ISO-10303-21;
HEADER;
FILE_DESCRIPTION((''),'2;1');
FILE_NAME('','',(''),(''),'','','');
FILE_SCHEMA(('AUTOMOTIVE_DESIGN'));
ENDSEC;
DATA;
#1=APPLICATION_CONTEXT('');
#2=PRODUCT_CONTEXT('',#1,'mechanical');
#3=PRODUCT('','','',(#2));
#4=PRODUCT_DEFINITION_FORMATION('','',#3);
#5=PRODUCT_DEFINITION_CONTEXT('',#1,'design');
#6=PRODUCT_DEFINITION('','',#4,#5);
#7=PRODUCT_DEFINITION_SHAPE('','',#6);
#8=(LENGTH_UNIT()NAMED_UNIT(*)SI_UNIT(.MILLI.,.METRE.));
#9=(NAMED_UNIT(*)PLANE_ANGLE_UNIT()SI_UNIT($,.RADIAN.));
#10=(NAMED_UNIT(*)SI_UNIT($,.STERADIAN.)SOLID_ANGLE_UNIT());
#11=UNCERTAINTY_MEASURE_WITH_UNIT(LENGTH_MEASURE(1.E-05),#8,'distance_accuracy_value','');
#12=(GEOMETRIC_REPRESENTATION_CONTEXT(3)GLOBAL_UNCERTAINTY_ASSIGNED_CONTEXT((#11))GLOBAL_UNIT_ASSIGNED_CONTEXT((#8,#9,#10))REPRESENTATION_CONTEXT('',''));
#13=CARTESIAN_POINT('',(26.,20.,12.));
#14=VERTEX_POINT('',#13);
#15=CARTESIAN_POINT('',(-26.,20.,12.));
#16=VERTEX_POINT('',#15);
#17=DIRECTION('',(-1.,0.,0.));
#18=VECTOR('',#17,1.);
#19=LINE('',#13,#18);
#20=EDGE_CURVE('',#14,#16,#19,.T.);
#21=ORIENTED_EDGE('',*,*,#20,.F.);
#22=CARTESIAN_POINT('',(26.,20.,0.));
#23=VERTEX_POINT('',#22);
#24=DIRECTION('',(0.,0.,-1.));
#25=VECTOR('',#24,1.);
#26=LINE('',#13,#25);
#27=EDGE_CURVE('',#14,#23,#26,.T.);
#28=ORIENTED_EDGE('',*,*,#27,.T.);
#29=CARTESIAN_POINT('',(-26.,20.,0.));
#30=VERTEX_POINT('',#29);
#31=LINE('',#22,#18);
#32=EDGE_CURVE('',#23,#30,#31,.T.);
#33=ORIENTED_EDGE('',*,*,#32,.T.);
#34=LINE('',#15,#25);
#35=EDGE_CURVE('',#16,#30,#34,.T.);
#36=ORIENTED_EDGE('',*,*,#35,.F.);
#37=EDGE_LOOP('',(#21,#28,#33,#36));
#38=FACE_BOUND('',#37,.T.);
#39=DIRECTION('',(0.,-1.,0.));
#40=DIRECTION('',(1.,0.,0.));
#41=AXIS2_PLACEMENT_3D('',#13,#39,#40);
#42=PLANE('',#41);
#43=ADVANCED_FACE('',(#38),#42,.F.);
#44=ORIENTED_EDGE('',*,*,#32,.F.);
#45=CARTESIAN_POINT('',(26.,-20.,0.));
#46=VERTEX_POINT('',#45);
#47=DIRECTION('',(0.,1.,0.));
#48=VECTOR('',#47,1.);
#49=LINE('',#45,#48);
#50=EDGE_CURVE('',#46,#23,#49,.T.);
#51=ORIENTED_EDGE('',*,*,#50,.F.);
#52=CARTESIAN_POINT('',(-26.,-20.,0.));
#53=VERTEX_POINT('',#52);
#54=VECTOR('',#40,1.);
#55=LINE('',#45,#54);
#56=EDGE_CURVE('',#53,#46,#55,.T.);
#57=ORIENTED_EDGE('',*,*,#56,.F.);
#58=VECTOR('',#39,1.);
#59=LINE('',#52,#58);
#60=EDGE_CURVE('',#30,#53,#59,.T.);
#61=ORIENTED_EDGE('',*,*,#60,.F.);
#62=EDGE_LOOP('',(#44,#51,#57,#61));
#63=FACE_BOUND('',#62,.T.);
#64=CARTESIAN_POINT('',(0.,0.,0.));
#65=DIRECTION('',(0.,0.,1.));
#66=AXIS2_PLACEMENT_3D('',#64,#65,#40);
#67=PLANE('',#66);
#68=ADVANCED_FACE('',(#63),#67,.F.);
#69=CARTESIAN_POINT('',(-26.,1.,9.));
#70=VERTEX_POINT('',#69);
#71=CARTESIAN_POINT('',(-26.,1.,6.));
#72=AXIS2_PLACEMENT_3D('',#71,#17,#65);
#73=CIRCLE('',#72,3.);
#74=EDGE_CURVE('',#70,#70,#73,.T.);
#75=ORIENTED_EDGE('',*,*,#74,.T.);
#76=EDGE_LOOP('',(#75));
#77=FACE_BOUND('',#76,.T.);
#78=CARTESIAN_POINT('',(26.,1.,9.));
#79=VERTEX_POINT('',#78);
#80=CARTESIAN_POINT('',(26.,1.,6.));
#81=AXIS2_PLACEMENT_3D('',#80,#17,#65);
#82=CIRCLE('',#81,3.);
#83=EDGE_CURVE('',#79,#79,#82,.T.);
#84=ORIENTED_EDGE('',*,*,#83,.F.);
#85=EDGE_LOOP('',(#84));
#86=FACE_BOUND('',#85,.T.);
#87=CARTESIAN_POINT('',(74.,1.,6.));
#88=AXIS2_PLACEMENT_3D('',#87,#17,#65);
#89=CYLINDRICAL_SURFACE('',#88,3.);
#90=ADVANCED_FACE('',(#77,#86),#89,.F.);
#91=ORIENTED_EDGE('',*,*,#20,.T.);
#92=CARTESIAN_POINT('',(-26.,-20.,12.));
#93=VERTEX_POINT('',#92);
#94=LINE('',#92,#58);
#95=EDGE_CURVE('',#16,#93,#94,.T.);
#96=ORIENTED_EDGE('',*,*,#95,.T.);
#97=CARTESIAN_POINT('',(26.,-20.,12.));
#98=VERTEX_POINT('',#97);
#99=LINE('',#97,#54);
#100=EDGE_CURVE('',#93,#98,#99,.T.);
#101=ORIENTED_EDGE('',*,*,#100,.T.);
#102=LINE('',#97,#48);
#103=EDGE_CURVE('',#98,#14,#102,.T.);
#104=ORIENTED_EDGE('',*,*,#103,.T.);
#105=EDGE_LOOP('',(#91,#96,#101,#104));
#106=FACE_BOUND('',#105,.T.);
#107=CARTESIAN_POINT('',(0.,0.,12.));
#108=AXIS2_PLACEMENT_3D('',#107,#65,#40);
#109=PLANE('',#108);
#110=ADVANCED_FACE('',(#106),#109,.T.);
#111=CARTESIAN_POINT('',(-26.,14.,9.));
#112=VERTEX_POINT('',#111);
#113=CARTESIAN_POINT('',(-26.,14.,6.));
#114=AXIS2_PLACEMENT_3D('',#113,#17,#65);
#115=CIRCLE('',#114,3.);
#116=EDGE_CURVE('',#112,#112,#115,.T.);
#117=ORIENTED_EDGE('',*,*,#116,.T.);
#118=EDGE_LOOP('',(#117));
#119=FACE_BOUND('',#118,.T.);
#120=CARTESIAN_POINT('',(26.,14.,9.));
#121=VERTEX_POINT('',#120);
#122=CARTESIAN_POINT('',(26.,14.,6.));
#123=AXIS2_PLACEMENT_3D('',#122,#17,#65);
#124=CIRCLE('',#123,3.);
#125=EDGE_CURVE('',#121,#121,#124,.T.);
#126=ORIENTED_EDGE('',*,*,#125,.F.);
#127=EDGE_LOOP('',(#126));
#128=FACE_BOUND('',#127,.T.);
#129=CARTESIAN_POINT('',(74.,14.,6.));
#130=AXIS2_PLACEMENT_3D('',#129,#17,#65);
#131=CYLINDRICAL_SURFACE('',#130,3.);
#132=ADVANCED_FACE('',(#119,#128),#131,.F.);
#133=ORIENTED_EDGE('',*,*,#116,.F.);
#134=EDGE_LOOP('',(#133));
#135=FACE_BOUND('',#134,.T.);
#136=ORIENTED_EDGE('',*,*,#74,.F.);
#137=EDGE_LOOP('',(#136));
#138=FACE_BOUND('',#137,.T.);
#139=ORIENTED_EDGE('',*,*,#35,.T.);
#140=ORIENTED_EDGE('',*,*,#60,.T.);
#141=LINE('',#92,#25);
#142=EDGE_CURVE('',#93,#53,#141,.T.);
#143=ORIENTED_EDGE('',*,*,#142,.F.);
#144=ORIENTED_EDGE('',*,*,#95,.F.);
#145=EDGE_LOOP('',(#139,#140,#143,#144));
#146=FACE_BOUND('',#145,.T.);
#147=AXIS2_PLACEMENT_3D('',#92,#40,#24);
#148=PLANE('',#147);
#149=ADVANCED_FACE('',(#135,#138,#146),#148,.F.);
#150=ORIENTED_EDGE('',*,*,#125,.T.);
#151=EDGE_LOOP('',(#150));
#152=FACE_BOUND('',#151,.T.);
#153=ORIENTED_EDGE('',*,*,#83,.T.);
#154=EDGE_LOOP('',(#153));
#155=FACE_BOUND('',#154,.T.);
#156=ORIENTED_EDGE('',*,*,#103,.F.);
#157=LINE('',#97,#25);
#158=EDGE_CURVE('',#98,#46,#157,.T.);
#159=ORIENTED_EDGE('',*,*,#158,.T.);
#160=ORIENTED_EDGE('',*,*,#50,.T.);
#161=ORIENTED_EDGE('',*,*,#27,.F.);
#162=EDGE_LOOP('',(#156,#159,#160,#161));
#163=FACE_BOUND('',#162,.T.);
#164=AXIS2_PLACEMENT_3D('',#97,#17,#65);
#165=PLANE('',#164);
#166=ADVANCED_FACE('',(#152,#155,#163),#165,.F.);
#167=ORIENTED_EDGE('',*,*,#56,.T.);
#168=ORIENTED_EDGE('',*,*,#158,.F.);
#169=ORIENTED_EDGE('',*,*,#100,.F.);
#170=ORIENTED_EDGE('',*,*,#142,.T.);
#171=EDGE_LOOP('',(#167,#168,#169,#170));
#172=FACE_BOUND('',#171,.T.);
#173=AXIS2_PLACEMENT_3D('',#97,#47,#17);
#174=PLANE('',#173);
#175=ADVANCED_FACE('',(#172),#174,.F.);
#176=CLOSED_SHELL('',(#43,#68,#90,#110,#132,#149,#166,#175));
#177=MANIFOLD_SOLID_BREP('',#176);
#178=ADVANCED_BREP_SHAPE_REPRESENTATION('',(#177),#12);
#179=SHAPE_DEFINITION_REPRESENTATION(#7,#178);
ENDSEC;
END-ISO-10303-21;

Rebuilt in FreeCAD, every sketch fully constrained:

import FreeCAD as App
import Part
import Sketcher

doc = App.newDocument("Part")
params = doc.addObject("Spreadsheet::Sheet", "Params")
for row, (alias, value) in enumerate([
    ("sketch1_width", "52 mm"),
    ("sketch1_height", "40 mm"),
    ("pad1_length", "12 mm"),
    ("sketch2_diameter", "6 mm"),
    ("pocket1_length", "100 mm"),
], start=1):
    params.set(f"A{row}", alias)
    params.set(f"B{row}", "=" + value)
    params.setAlias(f"B{row}", alias)

body = doc.addObject("PartDesign::Body", "Body")

# Sketch on XY plane
sketch1 = body.newObject("Sketcher::SketchObject", "Sketch")
sketch1.AttachmentSupport = (doc.getObject("XY_Plane"), [""])
sketch1.MapMode = "FlatFace"
sketch1.addGeometry(Part.LineSegment(App.Vector(-26, 20, 0), App.Vector(-26, -20, 0)), False)
sketch1.addGeometry(Part.LineSegment(App.Vector(-26, -20, 0), App.Vector(26, -20, 0)), False)
sketch1.addGeometry(Part.LineSegment(App.Vector(26, -20, 0), App.Vector(26, 20, 0)), False)
sketch1.addGeometry(Part.LineSegment(App.Vector(26, 20, 0), App.Vector(-26, 20, 0)), False)
sketch1.addConstraint(Sketcher.Constraint("Coincident", 0, 2, 1, 1))
sketch1.addConstraint(Sketcher.Constraint("Coincident", 1, 2, 2, 1))
sketch1.addConstraint(Sketcher.Constraint("Coincident", 2, 2, 3, 1))
sketch1.addConstraint(Sketcher.Constraint("Coincident", 3, 2, 0, 1))
sketch1.addConstraint(Sketcher.Constraint("Vertical", 0))
sketch1.addConstraint(Sketcher.Constraint("Horizontal", 1))
sketch1.addConstraint(Sketcher.Constraint("Vertical", 2))
sketch1.addConstraint(Sketcher.Constraint("Horizontal", 3))
sketch1.addConstraint(Sketcher.Constraint("Symmetric", 0, 2, 2, 2, -1, 1))
sketch1.addConstraint(Sketcher.Constraint("DistanceX", 1, 1, 1, 2, 52.0))
sketch1.addConstraint(Sketcher.Constraint("DistanceY", 0, 2, 0, 1, 40.0))
sketch1.setExpression("Constraints[9]", "Params.sketch1_width")
sketch1.setExpression("Constraints[10]", "Params.sketch1_height")
pad1 = body.newObject("PartDesign::Pad", "Pad")
pad1.Profile = sketch1
pad1.setExpression("Length", "Params.pad1_length")

# Sketch on YZ plane
sketch2 = body.newObject("Sketcher::SketchObject", "Sketch001")
sketch2.AttachmentSupport = (doc.getObject("YZ_Plane"), [""])
sketch2.MapMode = "FlatFace"
sketch2.AttachmentOffset = App.Placement(App.Vector(0, 0, -26), App.Rotation())
sketch2.addGeometry(Part.Circle(App.Vector(14, 6, 0), App.Vector(0, 0, 1), 3), False)
sketch2.addGeometry(Part.Circle(App.Vector(1, 6, 0), App.Vector(0, 0, 1), 3), False)
sketch2.addConstraint(Sketcher.Constraint("Equal", 0, 1))
sketch2.addConstraint(Sketcher.Constraint("Horizontal", 0, 3, 1, 3))
sketch2.addConstraint(Sketcher.Constraint("Diameter", 0, 6.0))
sketch2.addConstraint(Sketcher.Constraint("DistanceX", -1, 1, 0, 3, 14.0))
sketch2.addConstraint(Sketcher.Constraint("DistanceY", -1, 1, 0, 3, 6.0))
sketch2.addConstraint(Sketcher.Constraint("DistanceX", -1, 1, 1, 3, 1.0))
sketch2.setExpression("Constraints[2]", "Params.sketch2_diameter")
pocket1 = body.newObject("PartDesign::Pocket", "Pocket")
pocket1.Profile = sketch2
pocket1.setExpression("Length", "Params.pocket1_length")
pocket1.Reversed = True

doc.recompute()
